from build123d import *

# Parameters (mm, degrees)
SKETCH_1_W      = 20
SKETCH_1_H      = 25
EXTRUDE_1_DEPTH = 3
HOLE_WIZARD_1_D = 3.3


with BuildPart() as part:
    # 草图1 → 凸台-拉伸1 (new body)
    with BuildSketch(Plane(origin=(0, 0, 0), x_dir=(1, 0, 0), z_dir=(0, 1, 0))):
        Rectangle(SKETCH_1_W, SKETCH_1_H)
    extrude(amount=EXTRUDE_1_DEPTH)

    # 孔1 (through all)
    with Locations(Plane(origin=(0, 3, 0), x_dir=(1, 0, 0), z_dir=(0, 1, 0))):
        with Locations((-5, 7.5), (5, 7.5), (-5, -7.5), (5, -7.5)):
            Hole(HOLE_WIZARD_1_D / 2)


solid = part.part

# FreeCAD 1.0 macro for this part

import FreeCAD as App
import Part
import Sketcher

doc = App.newDocument("Part")
body = doc.addObject("PartDesign::Body", "Body")

sketch1 = body.newObject("Sketcher::SketchObject", "Sketch")
sketch1.AttachmentSupport = (doc.getObject("XZ_Plane"), [""])
sketch1.MapMode = "FlatFace"
sketch1.addGeometry([
    Part.LineSegment(App.Vector(-10, -12.5, 0), App.Vector(-10, 12.5, 0)),
    Part.LineSegment(App.Vector(-10, 12.5, 0), App.Vector(10, 12.5, 0)),
    Part.LineSegment(App.Vector(10, 12.5, 0), App.Vector(10, -12.5, 0)),
    Part.LineSegment(App.Vector(10, -12.5, 0), App.Vector(-10, -12.5, 0)),
], False)
sketch1.addConstraint([
    Sketcher.Constraint("Coincident", 0, 2, 1, 1),
    Sketcher.Constraint("Coincident", 1, 2, 2, 1),
    Sketcher.Constraint("Coincident", 2, 2, 3, 1),
    Sketcher.Constraint("Coincident", 3, 2, 0, 1),
    Sketcher.Constraint("Vertical", 0),
    Sketcher.Constraint("Horizontal", 1),
    Sketcher.Constraint("Vertical", 2),
    Sketcher.Constraint("Horizontal", 3),
    Sketcher.Constraint("Symmetric", 0, 2, 2, 2, -1, 1),
    Sketcher.Constraint("DistanceX", 1, 1, 1, 2, 20.0),
    Sketcher.Constraint("DistanceY", 0, 1, 0, 2, 25.0),
])
pad1 = body.newObject("PartDesign::Pad", "Pad")
pad1.Profile = sketch1
pad1.Length = 3
pad1.Reversed = True

sketch2 = body.newObject("Sketcher::SketchObject", "Sketch001")
sketch2.AttachmentSupport = (doc.getObject("XZ_Plane"), [""])
sketch2.MapMode = "FlatFace"
sketch2.AttachmentOffset = App.Placement(App.Vector(0, 0, -3), App.Rotation())
sketch2.addGeometry([
    Part.Circle(App.Vector(-5, -7.5, 0), App.Vector(0, 0, 1), 1.65),
    Part.Circle(App.Vector(5, -7.5, 0), App.Vector(0, 0, 1), 1.65),
    Part.Circle(App.Vector(-5, 7.5, 0), App.Vector(0, 0, 1), 1.65),
    Part.Circle(App.Vector(5, 7.5, 0), App.Vector(0, 0, 1), 1.65),
], False)
sketch2.addConstraint([
    Sketcher.Constraint("Equal", 0, 1),
    Sketcher.Constraint("Equal", 1, 2),
    Sketcher.Constraint("Equal", 2, 3),
    Sketcher.Constraint("Symmetric", 1, 3, 2, 3, -1, 1),
    Sketcher.Constraint("Symmetric", 0, 3, 3, 3, -1, 1),
    Sketcher.Constraint("Symmetric", 0, 3, 1, 3, -2),
    Sketcher.Constraint("Diameter", 0, 3.3),
    Sketcher.Constraint("DistanceX", 0, 3, -1, 1, 5.0),
    Sketcher.Constraint("DistanceY", 0, 3, 2, 3, 15.0),
])
doc.recompute()
hole = body.newObject("PartDesign::Hole", "Hole")
hole.Profile = sketch2
hole.ThreadType = "None"
hole.Diameter = 3.3
hole.DepthType = "ThroughAll"
hole.Reversed = True

doc.recompute()
